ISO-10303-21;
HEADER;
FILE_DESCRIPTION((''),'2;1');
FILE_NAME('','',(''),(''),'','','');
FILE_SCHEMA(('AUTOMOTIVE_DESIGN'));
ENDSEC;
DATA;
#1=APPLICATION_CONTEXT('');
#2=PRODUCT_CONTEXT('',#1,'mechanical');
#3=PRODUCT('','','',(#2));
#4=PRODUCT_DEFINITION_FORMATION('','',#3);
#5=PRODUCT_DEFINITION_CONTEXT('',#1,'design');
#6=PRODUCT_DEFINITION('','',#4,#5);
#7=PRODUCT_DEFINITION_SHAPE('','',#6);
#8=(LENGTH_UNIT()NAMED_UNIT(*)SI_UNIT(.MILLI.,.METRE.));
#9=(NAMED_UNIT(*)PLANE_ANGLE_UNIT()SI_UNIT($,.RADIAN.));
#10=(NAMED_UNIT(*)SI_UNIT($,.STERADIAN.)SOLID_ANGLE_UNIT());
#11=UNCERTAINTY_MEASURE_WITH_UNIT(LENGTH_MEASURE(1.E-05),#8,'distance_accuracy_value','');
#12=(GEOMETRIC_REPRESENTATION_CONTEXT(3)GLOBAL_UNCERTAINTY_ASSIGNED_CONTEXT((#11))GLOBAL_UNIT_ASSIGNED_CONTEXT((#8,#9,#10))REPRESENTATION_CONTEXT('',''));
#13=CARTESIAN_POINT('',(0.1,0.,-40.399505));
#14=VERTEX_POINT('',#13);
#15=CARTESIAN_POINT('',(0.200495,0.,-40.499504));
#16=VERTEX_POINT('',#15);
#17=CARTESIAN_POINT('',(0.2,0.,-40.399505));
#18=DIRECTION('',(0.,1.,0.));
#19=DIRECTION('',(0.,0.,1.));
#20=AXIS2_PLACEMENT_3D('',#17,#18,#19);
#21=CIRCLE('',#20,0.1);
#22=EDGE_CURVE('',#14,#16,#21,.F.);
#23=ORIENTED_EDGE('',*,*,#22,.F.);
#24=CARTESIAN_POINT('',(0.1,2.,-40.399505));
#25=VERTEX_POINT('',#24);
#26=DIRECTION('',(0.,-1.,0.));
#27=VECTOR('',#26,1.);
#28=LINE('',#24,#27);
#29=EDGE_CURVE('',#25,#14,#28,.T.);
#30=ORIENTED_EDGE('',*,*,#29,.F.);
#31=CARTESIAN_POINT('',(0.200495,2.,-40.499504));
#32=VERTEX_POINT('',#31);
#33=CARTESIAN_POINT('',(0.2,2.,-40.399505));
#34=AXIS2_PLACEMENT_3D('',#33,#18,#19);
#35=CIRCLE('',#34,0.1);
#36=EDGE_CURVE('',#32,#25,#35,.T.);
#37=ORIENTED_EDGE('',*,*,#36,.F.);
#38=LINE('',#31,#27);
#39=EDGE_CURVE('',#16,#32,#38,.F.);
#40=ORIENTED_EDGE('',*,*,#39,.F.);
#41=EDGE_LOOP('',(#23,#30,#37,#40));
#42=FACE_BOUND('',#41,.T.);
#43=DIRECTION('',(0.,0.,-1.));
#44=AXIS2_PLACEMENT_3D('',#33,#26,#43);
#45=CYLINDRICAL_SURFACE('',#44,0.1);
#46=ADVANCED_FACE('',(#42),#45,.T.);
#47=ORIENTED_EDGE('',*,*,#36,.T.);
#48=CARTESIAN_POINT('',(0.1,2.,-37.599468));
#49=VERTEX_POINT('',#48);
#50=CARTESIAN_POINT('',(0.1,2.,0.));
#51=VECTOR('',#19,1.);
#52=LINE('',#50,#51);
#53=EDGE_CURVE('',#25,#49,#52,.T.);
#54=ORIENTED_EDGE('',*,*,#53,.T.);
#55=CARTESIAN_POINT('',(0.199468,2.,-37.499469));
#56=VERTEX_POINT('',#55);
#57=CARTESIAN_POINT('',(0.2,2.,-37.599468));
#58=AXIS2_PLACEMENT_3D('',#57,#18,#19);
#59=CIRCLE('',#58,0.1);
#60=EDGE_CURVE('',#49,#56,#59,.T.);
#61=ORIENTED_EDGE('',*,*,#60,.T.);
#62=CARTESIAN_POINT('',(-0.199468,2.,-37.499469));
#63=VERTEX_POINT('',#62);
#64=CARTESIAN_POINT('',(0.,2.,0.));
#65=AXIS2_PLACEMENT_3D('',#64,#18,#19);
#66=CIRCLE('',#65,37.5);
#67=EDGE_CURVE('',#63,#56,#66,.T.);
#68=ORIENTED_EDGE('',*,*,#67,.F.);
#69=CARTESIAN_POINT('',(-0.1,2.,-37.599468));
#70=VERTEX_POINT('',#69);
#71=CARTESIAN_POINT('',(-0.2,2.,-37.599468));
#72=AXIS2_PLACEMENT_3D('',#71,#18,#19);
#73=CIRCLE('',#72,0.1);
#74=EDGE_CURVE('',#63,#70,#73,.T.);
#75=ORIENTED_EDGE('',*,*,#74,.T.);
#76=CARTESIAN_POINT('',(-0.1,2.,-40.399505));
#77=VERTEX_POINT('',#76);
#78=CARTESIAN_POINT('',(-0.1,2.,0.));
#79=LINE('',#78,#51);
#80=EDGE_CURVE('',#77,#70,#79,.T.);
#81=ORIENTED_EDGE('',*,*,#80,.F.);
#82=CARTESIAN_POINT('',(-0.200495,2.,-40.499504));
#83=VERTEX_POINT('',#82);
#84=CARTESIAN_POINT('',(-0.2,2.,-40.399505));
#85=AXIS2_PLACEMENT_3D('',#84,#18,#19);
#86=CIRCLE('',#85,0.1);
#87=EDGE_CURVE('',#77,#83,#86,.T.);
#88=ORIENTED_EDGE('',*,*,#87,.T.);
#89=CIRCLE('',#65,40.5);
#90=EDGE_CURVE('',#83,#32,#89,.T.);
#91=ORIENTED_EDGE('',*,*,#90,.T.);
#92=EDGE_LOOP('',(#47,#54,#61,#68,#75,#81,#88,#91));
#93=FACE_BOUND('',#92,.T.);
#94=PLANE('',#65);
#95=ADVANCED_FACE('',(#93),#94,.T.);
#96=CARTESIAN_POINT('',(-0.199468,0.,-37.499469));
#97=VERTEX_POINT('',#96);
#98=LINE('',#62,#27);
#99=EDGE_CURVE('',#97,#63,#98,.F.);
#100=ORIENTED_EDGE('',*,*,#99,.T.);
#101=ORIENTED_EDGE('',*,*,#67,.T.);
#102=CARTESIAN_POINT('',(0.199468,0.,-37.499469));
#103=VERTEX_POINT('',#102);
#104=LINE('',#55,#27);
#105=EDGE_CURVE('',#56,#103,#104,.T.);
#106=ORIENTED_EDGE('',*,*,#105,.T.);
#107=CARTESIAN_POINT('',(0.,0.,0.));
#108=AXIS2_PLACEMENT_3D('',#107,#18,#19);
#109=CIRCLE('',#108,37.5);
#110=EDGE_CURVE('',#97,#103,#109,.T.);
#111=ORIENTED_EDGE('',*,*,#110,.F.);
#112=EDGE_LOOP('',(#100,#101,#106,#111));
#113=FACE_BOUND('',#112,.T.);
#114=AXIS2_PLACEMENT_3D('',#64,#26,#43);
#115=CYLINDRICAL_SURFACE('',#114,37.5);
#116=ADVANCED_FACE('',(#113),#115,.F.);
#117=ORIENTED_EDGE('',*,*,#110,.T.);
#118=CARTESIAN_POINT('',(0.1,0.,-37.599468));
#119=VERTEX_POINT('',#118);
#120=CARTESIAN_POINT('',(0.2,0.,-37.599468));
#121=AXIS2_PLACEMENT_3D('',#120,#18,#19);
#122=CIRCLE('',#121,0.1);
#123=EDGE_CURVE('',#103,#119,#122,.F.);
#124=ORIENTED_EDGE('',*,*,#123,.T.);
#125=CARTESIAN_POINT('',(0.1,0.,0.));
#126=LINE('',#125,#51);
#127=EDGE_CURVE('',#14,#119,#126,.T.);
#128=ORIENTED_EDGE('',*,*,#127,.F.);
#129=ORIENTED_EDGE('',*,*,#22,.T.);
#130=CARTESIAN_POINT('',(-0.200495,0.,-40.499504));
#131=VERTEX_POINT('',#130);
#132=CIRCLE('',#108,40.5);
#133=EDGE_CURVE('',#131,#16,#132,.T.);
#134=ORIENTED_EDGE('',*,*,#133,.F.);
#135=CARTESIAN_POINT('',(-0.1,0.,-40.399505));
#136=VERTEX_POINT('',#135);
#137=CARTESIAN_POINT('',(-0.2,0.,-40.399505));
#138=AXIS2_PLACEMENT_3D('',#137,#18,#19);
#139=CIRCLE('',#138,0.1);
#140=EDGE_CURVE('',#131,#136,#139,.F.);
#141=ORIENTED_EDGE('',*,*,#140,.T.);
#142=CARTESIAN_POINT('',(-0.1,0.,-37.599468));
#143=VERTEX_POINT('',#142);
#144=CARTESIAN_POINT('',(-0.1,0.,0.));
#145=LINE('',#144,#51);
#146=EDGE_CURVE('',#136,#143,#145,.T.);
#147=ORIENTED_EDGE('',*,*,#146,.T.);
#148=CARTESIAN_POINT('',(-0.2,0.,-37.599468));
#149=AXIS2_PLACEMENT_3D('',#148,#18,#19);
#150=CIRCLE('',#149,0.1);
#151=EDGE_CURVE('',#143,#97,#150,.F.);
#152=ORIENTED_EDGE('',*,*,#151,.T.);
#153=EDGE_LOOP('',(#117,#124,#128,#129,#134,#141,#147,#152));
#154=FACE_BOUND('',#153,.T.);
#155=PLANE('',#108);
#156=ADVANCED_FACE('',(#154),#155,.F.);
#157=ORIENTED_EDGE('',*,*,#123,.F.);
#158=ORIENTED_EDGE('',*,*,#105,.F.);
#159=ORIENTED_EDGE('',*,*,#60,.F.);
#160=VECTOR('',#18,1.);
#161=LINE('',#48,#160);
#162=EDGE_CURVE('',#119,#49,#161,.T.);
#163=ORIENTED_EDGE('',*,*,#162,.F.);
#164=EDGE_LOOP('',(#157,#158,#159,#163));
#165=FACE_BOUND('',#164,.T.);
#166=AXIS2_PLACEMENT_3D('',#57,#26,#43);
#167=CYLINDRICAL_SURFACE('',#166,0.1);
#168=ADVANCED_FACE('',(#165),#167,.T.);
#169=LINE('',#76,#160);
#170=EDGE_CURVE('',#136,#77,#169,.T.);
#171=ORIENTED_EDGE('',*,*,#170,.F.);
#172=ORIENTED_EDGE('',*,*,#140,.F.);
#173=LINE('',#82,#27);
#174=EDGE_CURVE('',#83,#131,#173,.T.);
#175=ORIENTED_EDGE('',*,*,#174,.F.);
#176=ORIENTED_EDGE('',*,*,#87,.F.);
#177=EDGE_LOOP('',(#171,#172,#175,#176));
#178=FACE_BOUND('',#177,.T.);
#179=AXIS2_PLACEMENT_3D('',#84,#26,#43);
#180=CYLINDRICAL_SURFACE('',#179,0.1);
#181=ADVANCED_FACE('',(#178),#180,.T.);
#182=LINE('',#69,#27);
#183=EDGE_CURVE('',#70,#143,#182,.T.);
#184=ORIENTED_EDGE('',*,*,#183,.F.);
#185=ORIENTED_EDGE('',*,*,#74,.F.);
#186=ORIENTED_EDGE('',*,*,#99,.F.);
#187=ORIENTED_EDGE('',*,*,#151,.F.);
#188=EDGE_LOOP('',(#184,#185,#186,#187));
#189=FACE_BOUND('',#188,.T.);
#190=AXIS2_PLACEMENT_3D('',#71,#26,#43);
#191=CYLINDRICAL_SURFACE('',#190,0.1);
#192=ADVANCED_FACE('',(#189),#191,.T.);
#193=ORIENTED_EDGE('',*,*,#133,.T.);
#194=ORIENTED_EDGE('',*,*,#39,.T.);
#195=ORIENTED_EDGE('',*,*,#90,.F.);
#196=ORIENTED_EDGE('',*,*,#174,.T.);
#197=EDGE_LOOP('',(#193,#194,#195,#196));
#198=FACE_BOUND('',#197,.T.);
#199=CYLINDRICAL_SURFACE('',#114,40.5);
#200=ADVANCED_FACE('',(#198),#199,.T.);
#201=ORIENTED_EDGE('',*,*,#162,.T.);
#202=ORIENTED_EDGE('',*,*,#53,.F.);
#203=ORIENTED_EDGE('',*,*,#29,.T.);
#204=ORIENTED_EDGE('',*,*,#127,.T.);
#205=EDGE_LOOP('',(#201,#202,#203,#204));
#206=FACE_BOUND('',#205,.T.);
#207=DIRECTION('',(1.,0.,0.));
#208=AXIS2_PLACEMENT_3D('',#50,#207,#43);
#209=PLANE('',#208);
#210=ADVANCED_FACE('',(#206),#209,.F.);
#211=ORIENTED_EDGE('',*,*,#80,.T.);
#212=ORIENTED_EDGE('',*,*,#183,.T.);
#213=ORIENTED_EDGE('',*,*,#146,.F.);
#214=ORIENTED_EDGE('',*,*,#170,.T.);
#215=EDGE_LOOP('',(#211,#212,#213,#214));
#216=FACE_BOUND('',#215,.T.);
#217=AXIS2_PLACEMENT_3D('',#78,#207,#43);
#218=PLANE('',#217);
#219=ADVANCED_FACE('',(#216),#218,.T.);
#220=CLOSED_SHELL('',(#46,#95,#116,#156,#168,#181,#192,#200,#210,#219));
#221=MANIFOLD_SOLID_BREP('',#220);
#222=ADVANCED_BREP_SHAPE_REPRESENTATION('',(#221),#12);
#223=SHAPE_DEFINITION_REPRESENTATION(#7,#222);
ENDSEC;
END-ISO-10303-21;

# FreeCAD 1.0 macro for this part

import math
import FreeCAD as App
import Part
import Sketcher

V = App.Vector


def edges_at(feature, points):
    """Names of the edges that pass closest to the given points."""
    edges = feature.Shape.Edges
    near = lambda p: min(range(len(edges)), key=lambda i: edges[i].distToShape(Part.Vertex(*p))[0])
    return sorted({f"Edge{near(p) + 1}" for p in points})

doc = App.newDocument("Part")
params = doc.addObject("Spreadsheet::Sheet", "Params")
for row, (alias, value) in enumerate([
    ("sketch1_radius", "37.5 mm"),
    ("sketch1_radius2", "40.5 mm"),
    ("pad1_length", "2 mm"),
    ("fillet_radius", "0.1 mm"),
], start=1):
    params.set(f"A{row}", alias)
    params.set(f"B{row}", "=" + value)
    params.setAlias(f"B{row}", alias)

body = doc.addObject("PartDesign::Body", "Body")

# Sketch on XZ plane
sketch1 = body.newObject("Sketcher::SketchObject", "Sketch")
sketch1.AttachmentSupport = (doc.getObject("XZ_Plane"), [""])
sketch1.MapMode = "FlatFace"
sketch1.addGeometry([
    Part.LineSegment(V(0.1, -40.499877, 0), V(0.1, -37.499867, 0)),  # 0
    Part.ArcOfCircle(Part.Circle(V(0, 0, 0), V(0, 0, 1), 37.5), math.radians(-89.847211), math.radians(0)),  # 1
    Part.ArcOfCircle(Part.Circle(V(0, 0, 0), V(0, 0, 1), 37.5), math.radians(0), math.radians(269.847211)),  # 2
    Part.LineSegment(V(-0.1, -37.499867, 0), V(-0.1, -40.499877, 0)),  # 3
    Part.ArcOfCircle(Part.Circle(V(0, 0, 0), V(0, 0, 1), 40.5), math.radians(0), math.radians(269.858529)),  # 4
    Part.ArcOfCircle(Part.Circle(V(0, 0, 0), V(0, 0, 1), 40.5), math.radians(-89.858529), math.radians(0)),  # 5
], False)
sketch1.addConstraint([
    Sketcher.Constraint("Coincident", 0, 2, 1, 1),
    Sketcher.Constraint("Tangent", 1, 2, 2, 1),
    Sketcher.Constraint("Coincident", 2, 2, 3, 1),
    Sketcher.Constraint("Coincident", 3, 2, 4, 2),
    Sketcher.Constraint("Tangent", 4, 1, 5, 2),
    Sketcher.Constraint("Coincident", 5, 1, 0, 1),
    Sketcher.Constraint("Vertical", 0),
    Sketcher.Constraint("Vertical", 3),
    Sketcher.Constraint("Coincident", 1, 3, -1, 1),
    Sketcher.Constraint("Coincident", 4, 3, -1, 1),
    Sketcher.Constraint("Equal", 1, 2),
    Sketcher.Constraint("Equal", 4, 5),
    Sketcher.Constraint("PointOnObject", 1, 2, -1),
    Sketcher.Constraint("PointOnObject", 4, 1, -1),
    Sketcher.Constraint("Radius", 1, 37.5),
    Sketcher.Constraint("Radius", 4, 40.5),
    Sketcher.Constraint("DistanceX", -1, 1, 0, 2, 0.1),
    Sketcher.Constraint("DistanceX", 2, 2, -1, 1, 0.1),
])
sketch1.setExpression("Constraints[14]", "Params.sketch1_radius")
sketch1.setExpression("Constraints[15]", "Params.sketch1_radius2")
pad1 = body.newObject("PartDesign::Pad", "Pad")
pad1.Profile = sketch1
pad1.setExpression("Length", "Params.pad1_length")
pad1.Reversed = True
doc.recompute()

fillet = body.newObject("PartDesign::Fillet", "Fillet")
fillet.Base = (pad1, edges_at(pad1, [
    (-0.1, 1, -37.5),
    (0.1, 1, -37.5),
    (0.1, 1, -40.5),
    (-0.1, 1, -40.5),
]))
fillet.setExpression("Radius", "Params.fillet_radius")

doc.recompute()
